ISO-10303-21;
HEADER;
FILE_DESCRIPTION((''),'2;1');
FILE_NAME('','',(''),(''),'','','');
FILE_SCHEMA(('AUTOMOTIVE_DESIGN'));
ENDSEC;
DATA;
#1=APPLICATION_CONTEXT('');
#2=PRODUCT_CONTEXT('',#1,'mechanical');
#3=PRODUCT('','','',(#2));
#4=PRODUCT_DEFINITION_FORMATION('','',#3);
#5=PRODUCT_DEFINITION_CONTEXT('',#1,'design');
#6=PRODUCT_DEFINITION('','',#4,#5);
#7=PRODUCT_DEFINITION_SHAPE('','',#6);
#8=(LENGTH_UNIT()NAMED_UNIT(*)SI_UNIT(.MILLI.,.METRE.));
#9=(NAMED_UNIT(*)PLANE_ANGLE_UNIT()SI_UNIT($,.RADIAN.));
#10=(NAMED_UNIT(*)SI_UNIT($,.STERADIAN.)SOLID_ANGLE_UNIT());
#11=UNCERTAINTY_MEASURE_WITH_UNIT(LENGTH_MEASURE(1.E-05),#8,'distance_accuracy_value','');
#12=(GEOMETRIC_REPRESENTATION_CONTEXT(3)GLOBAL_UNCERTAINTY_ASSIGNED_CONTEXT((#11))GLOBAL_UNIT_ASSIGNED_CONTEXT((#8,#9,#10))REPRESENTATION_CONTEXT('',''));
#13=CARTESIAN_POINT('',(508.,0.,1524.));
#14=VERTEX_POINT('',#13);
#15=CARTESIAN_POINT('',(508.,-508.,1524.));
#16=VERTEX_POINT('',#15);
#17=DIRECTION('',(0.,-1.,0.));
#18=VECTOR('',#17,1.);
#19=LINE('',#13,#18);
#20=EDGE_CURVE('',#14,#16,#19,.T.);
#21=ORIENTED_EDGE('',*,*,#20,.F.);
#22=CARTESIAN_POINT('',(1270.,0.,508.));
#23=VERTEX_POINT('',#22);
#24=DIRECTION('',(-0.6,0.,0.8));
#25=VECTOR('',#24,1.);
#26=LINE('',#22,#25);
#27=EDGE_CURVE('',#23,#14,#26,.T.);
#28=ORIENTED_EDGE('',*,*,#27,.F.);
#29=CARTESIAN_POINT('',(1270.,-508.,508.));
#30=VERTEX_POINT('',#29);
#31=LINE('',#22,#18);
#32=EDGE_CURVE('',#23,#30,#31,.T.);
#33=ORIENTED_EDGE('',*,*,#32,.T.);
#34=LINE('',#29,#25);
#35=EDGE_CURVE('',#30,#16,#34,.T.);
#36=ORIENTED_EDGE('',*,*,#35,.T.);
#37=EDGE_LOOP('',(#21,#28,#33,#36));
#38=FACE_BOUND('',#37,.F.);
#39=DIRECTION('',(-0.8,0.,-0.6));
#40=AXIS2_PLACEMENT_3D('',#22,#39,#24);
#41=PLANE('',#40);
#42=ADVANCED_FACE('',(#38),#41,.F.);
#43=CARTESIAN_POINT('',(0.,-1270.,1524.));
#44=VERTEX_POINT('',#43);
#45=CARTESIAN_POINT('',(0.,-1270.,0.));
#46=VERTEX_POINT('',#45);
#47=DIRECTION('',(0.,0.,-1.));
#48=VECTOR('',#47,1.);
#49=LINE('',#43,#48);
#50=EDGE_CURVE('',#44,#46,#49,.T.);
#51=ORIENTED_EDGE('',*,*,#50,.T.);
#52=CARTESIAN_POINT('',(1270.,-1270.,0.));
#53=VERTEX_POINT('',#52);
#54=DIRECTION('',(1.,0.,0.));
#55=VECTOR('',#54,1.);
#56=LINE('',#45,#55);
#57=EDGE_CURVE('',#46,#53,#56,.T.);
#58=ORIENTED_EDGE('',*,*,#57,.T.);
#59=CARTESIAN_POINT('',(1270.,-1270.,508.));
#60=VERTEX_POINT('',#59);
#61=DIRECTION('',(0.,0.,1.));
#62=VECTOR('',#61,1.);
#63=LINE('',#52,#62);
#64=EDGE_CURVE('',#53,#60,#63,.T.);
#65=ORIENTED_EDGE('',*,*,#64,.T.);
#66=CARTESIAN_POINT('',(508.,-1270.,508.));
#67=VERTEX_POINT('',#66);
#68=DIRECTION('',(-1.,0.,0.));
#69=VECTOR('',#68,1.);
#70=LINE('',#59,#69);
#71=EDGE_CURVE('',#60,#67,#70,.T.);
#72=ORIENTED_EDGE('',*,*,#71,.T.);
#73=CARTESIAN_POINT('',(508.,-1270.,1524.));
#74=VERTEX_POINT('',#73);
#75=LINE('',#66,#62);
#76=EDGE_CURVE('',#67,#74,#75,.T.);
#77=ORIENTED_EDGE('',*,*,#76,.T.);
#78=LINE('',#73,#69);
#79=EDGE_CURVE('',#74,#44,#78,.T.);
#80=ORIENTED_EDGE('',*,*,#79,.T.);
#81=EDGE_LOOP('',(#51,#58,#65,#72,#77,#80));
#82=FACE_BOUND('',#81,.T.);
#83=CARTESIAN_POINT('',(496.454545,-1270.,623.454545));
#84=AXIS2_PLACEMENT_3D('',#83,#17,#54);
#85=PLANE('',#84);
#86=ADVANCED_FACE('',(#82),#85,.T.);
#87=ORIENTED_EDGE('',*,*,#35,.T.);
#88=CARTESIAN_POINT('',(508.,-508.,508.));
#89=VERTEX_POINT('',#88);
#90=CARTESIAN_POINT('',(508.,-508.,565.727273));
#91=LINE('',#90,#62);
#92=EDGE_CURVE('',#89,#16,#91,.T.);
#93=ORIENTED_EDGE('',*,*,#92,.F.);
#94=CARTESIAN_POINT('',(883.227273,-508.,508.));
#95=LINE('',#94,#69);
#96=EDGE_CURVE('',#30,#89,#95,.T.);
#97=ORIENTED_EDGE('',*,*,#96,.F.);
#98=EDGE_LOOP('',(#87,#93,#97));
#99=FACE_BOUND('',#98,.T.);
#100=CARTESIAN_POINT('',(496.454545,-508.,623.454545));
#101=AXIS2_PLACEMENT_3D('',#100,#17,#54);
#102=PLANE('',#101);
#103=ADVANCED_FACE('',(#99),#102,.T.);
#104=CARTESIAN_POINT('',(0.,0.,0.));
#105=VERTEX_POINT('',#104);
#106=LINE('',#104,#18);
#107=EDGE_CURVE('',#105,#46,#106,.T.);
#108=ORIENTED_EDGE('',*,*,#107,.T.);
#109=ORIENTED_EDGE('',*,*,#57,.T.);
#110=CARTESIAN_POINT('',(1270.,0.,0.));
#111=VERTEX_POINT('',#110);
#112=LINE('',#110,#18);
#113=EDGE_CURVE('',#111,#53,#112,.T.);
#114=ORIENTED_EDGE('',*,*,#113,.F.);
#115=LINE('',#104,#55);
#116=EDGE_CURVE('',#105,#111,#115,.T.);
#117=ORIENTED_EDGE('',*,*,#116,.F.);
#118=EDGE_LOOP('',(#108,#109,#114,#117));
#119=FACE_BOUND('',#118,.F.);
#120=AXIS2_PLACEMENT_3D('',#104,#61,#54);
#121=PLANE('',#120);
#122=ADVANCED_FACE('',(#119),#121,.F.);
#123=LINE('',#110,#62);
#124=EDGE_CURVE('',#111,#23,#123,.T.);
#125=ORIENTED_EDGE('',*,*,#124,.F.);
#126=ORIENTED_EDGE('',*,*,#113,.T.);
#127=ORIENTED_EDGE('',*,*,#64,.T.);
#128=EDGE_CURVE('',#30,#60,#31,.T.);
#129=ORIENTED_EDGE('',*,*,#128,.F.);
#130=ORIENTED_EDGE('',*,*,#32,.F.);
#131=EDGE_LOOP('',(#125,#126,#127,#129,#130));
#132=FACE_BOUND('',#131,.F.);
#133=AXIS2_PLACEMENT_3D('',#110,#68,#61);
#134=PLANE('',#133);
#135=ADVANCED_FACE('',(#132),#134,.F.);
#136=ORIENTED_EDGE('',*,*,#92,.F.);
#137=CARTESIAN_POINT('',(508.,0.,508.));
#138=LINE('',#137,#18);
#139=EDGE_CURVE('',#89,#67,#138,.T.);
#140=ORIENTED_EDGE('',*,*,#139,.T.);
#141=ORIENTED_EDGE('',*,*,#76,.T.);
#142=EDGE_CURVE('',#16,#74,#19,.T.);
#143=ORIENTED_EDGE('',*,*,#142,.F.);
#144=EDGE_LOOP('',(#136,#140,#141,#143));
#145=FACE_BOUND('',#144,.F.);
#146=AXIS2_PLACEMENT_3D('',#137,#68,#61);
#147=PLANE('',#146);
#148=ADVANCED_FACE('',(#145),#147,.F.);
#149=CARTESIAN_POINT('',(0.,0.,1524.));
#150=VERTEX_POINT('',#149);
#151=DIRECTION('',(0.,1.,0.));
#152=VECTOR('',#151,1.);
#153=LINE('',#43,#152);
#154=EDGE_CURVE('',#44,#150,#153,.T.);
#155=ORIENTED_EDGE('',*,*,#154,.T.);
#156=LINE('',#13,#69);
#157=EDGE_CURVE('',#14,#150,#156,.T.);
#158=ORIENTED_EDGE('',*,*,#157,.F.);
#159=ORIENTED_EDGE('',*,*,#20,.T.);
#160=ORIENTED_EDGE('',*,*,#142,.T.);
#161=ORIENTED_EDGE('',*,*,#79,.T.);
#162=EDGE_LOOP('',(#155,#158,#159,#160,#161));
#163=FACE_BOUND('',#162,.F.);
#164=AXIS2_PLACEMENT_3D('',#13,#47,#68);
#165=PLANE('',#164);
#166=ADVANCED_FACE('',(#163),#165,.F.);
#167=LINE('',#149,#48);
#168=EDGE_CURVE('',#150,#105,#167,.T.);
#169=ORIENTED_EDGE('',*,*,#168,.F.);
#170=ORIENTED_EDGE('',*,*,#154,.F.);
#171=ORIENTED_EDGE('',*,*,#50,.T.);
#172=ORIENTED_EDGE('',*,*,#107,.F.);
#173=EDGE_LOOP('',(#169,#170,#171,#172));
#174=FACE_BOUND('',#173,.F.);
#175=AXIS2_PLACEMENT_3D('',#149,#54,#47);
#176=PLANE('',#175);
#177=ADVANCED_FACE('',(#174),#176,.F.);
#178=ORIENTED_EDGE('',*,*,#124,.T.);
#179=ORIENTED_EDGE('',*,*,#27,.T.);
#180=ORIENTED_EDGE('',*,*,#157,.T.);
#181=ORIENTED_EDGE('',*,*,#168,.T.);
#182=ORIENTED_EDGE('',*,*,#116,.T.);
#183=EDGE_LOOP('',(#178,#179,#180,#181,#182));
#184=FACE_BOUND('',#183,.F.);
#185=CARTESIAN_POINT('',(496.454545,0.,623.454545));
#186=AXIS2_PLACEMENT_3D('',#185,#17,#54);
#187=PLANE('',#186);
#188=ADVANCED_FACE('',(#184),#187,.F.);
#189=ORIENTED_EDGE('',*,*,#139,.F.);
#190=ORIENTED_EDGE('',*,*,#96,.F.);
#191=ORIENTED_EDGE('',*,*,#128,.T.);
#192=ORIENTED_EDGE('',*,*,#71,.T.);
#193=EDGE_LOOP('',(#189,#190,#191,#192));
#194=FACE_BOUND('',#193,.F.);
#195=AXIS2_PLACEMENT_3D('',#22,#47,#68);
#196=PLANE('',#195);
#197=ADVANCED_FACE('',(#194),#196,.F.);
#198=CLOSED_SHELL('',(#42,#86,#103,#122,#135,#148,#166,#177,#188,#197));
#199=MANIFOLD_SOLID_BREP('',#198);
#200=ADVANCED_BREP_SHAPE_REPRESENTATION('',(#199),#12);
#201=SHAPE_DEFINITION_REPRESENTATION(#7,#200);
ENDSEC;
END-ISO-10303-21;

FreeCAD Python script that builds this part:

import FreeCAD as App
import Part
import Sketcher

V = App.Vector
Q = App.Units.Quantity

doc = App.newDocument("Part")
body = doc.addObject("PartDesign::Body", "Body")

sketch1 = body.newObject("Sketcher::SketchObject", "Sketch")
sketch1.AttachmentSupport = (doc.getObject("XZ_Plane"), [""])
sketch1.MapMode = "FlatFace"
sketch1.addGeometry(Part.LineSegment(V(0, 1524, 0), V(0, 0, 0)), False)
sketch1.addGeometry(Part.LineSegment(V(0, 0, 0), V(1270, 0, 0)), False)
sketch1.addGeometry(Part.LineSegment(V(1270, 0, 0), V(1270, 508, 0)), False)
sketch1.addGeometry(Part.LineSegment(V(1270, 508, 0), V(508, 508, 0)), False)
sketch1.addGeometry(Part.LineSegment(V(508, 508, 0), V(508, 1524, 0)), False)
sketch1.addGeometry(Part.LineSegment(V(508, 1524, 0), V(0, 1524, 0)), False)
sketch1.addConstraint(Sketcher.Constraint("Coincident", 0, 2, 1, 1))
sketch1.addConstraint(Sketcher.Constraint("Coincident", 1, 2, 2, 1))
sketch1.addConstraint(Sketcher.Constraint("Coincident", 2, 2, 3, 1))
sketch1.addConstraint(Sketcher.Constraint("Coincident", 3, 2, 4, 1))
sketch1.addConstraint(Sketcher.Constraint("Coincident", 4, 2, 5, 1))
sketch1.addConstraint(Sketcher.Constraint("Coincident", 5, 2, 0, 1))
sketch1.addConstraint(Sketcher.Constraint("Vertical", 0))
sketch1.addConstraint(Sketcher.Constraint("Horizontal", 1))
sketch1.addConstraint(Sketcher.Constraint("Vertical", 2))
sketch1.addConstraint(Sketcher.Constraint("Horizontal", 3))
sketch1.addConstraint(Sketcher.Constraint("Vertical", 4))
sketch1.addConstraint(Sketcher.Constraint("Horizontal", 5))
sketch1.addConstraint(Sketcher.Constraint("Coincident", 0, 2, -1, 1))
sketch1.addConstraint(Sketcher.Constraint("Equal", 5, 2))
sketch1.addConstraint(Sketcher.Constraint("DistanceX", 1, 1, 1, 2, Q("50 in")))
sketch1.addConstraint(Sketcher.Constraint("DistanceX", 3, 2, 3, 1, Q("30 in")))
sketch1.addConstraint(Sketcher.Constraint("DistanceY", 0, 2, 0, 1, Q("60 in")))
pad1 = body.newObject("PartDesign::Pad", "Pad")
pad1.Profile = sketch1
pad1.Length = Q("50 in")

sketch2 = body.newObject("Sketcher::SketchObject", "Sketch001")
sketch2.AttachmentSupport = (doc.getObject("XZ_Plane"), [""])
sketch2.MapMode = "FlatFace"
sketch2.addGeometry(Part.LineSegment(V(0, 1524, 0), V(0, 0, 0)), False)
sketch2.addGeometry(Part.LineSegment(V(0, 0, 0), V(1270, 0, 0)), False)
sketch2.addGeometry(Part.LineSegment(V(1270, 0, 0), V(1270, 508, 0)), False)
sketch2.addGeometry(Part.LineSegment(V(1270, 508, 0), V(508, 1524, 0)), False)
sketch2.addGeometry(Part.LineSegment(V(508, 1524, 0), V(0, 1524, 0)), False)
sketch2.addConstraint(Sketcher.Constraint("Coincident", 0, 2, 1, 1))
sketch2.addConstraint(Sketcher.Constraint("Coincident", 1, 2, 2, 1))
sketch2.addConstraint(Sketcher.Constraint("Coincident", 2, 2, 3, 1))
sketch2.addConstraint(Sketcher.Constraint("Coincident", 3, 2, 4, 1))
sketch2.addConstraint(Sketcher.Constraint("Coincident", 4, 2, 0, 1))
sketch2.addConstraint(Sketcher.Constraint("Vertical", 0))
sketch2.addConstraint(Sketcher.Constraint("Horizontal", 1))
sketch2.addConstraint(Sketcher.Constraint("Vertical", 2))
sketch2.addConstraint(Sketcher.Constraint("Horizontal", 4))
sketch2.addConstraint(Sketcher.Constraint("Coincident", 0, 2, -1, 1))
sketch2.addConstraint(Sketcher.Constraint("Equal", 4, 2))
sketch2.addConstraint(Sketcher.Constraint("DistanceX", 1, 1, 1, 2, Q("50 in")))
sketch2.addConstraint(Sketcher.Constraint("DistanceX", 4, 2, 4, 1, Q("20 in")))
sketch2.addConstraint(Sketcher.Constraint("DistanceY", 0, 2, 0, 1, Q("60 in")))
pad2 = body.newObject("PartDesign::Pad", "Pad001")
pad2.Profile = sketch2
pad2.Length = Q("20 in")

doc.recompute()
